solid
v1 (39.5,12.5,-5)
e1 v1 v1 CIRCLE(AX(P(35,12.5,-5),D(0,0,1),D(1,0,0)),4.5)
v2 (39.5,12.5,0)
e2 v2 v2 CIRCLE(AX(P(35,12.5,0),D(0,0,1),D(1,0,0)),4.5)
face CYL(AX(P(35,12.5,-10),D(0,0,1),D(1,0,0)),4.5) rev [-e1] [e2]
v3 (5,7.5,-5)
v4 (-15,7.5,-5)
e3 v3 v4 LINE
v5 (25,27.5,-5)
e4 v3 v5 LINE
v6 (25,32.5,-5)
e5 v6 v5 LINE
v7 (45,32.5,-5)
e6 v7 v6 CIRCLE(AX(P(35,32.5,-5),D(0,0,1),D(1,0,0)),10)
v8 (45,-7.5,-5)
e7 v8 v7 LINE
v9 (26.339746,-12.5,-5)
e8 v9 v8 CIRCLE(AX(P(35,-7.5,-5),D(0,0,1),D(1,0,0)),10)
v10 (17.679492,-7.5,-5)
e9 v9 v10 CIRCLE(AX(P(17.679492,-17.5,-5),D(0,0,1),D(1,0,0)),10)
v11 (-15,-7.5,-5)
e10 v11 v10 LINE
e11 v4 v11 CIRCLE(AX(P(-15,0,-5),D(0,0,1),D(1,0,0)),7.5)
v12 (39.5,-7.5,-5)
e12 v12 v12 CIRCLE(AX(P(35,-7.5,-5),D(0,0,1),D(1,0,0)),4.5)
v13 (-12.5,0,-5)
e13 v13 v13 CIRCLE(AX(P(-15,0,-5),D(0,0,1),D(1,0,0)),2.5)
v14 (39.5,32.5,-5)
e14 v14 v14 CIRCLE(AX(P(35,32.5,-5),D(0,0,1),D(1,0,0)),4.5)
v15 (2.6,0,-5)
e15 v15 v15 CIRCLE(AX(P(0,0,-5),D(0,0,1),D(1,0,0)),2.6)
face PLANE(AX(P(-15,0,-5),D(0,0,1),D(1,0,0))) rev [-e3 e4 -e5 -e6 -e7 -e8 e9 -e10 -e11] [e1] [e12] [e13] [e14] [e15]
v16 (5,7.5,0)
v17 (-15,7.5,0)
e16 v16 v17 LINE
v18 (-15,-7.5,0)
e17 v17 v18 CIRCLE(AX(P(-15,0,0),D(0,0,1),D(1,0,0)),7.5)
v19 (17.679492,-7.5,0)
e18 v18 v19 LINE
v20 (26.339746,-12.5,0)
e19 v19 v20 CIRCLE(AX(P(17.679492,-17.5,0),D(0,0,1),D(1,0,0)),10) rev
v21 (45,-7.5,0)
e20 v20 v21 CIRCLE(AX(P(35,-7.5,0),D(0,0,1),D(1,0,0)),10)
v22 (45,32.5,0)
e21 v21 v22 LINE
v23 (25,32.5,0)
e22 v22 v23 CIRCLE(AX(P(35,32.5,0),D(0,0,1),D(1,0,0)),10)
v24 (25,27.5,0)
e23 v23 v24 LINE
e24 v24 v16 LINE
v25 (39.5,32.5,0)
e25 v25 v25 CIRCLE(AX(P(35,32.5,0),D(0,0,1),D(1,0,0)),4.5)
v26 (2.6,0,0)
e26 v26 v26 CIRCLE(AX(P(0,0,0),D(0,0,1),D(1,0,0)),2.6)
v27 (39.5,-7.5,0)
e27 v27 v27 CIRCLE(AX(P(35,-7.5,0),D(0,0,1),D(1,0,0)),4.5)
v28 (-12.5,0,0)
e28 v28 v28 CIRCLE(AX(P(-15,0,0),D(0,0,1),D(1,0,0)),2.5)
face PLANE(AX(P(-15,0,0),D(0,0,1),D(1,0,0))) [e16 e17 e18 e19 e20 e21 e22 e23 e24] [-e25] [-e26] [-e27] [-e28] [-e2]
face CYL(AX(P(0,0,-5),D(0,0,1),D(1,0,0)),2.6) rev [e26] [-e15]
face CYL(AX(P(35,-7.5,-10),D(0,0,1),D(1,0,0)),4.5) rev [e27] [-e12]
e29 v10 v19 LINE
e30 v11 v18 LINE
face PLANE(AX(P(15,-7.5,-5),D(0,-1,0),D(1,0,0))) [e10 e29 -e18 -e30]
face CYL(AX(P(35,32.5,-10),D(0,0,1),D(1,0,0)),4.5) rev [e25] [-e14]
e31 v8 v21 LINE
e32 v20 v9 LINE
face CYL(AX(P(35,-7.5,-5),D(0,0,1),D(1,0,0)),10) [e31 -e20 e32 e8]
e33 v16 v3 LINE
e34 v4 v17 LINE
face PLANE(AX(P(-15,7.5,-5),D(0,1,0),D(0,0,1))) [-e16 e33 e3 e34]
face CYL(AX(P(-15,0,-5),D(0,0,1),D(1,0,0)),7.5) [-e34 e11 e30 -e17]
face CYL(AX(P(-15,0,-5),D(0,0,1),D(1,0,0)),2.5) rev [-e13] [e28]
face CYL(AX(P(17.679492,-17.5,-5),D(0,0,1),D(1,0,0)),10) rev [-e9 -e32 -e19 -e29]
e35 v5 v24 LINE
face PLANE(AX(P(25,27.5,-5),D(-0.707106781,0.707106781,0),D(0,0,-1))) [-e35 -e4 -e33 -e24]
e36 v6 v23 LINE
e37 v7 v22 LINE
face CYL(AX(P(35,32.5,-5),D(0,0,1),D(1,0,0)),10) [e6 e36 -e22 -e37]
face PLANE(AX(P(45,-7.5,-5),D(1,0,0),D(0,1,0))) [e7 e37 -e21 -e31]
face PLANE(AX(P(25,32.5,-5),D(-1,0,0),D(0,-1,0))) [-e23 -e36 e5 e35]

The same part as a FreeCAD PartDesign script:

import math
import FreeCAD as App
import Part
import Sketcher
from FreeCAD import Vector
Q = App.Units.Quantity


def edges_at(feature, points):
    """Names of the edges that pass closest to the given points."""
    edges = feature.Shape.Edges
    near = lambda p: min(range(len(edges)), key=lambda i: edges[i].distToShape(Part.Vertex(*p))[0])
    return sorted({f"Edge{near(p) + 1}" for p in points})

doc = App.newDocument("Part")
body = doc.addObject("PartDesign::Body", "Body")

# Sketch on XY plane
sketch1 = doc.addObject("Sketcher::SketchObject", "Sketch")
body.addObject(sketch1)
sketch1.AttachmentSupport = (doc.XY_Plane, [""])
sketch1.MapMode = "FlatFace"
sketch1.addGeometry([
    Part.LineSegment(Vector(25, 7.5, 0), Vector(-15, 7.5, 0)),  # 0
    Part.ArcOfCircle(Part.Circle(Vector(-15, 0, 0), Vector(0, 0, 1), 7.5), math.radians(90), math.radians(270)),  # 1
    Part.LineSegment(Vector(-15, -7.5, 0), Vector(25, -7.5, 0)),  # 2
    Part.ArcOfCircle(Part.Circle(Vector(35, -7.5, 0), Vector(0, 0, 1), 10), math.radians(180), math.radians(360)),  # 3
    Part.LineSegment(Vector(45, -7.5, 0), Vector(45, 32.5, 0)),  # 4
    Part.ArcOfCircle(Part.Circle(Vector(35, 32.5, 0), Vector(0, 0, 1), 10), math.radians(0), math.radians(180)),  # 5
    Part.LineSegment(Vector(25, 32.5, 0), Vector(25, 7.5, 0)),  # 6
    Part.Circle(Vector(-15, 0, 0), Vector(0, 0, 1), 2.5),  # 7
    Part.Circle(Vector(0, 0, 0), Vector(0, 0, 1), 2.6),  # 8
], False)
sketch1.addConstraint([
    Sketcher.Constraint("Tangent", 0, 2, 1, 1),
    Sketcher.Constraint("Tangent", 1, 2, 2, 1),
    Sketcher.Constraint("Coincident", 2, 2, 3, 1),
    Sketcher.Constraint("Tangent", 3, 2, 4, 1),
    Sketcher.Constraint("Tangent", 4, 2, 5, 1),
    Sketcher.Constraint("Tangent", 5, 2, 6, 1),
    Sketcher.Constraint("Coincident", 6, 2, 0, 1),
    Sketcher.Constraint("Horizontal", 0),
    Sketcher.Constraint("Horizontal", 2),
    Sketcher.Constraint("Vertical", 4),
    Sketcher.Constraint("Vertical", 6),
    Sketcher.Constraint("Coincident", 8, 3, -1, 1),
    Sketcher.Constraint("Coincident", 7, 3, 1, 3),
    Sketcher.Constraint("Equal", 3, 5),
    Sketcher.Constraint("PointOnObject", 1, 3, -1),
    Sketcher.Constraint("Horizontal", 3, 3, 1, 2),
    Sketcher.Constraint("Equal", 2, 4),
    Sketcher.Constraint("Diameter", 7, Q("5 mm")),
    Sketcher.Constraint("Radius", 3, Q("10 mm")),
    Sketcher.Constraint("Diameter", 8, Q("5.2 mm")),
    Sketcher.Constraint("Radius", 1, Q("7.5 mm")),
    Sketcher.Constraint("DistanceX", 0, 2, 0, 1, Q("40 mm")),
    Sketcher.Constraint("DistanceX", 1, 3, -1, 1, Q("15 mm")),
])
pad1 = doc.addObject("PartDesign::Pad", "Pad")
body.addObject(pad1)
pad1.Profile = sketch1
pad1.Length = 5
pad1.Reversed = True

# Sketch on XY plane
sketch2 = doc.addObject("Sketcher::SketchObject", "Sketch001")
body.addObject(sketch2)
sketch2.AttachmentSupport = (doc.XY_Plane, [""])
sketch2.MapMode = "FlatFace"
sketch2.addGeometry([
    Part.Circle(Vector(35, -7.5, 0), Vector(0, 0, 1), 4.5),
    Part.Circle(Vector(35, 32.5, 0), Vector(0, 0, 1), 4.5),
    Part.Circle(Vector(35, 12.5, 0), Vector(0, 0, 1), 4.5),
], False)
sketch2.addConstraint([
    Sketcher.Constraint("Equal", 0, 1),
    Sketcher.Constraint("Equal", 1, 2),
    Sketcher.Constraint("Vertical", 0, 3, 1, 3),
    Sketcher.Constraint("Vertical", 1, 3, 2, 3),
    Sketcher.Constraint("Diameter", 0, Q("9 mm")),
    Sketcher.Constraint("DistanceX", -1, 1, 0, 3, Q("35 mm")),
    Sketcher.Constraint("DistanceY", 0, 3, 1, 3, Q("40 mm")),
    Sketcher.Constraint("DistanceY", 0, 3, 2, 3, Q("20 mm")),
    Sketcher.Constraint("DistanceY", 0, 3, -1, 1, Q("7.5 mm")),
])
pocket1 = doc.addObject("PartDesign::Pocket", "Pocket")
body.addObject(pocket1)
pocket1.Profile = sketch2
pocket1.Length = 10
doc.recompute()

chamfer = doc.addObject("PartDesign::Chamfer", "Chamfer")
body.addObject(chamfer)
chamfer.Base = (pocket1, edges_at(pocket1, [(25, 7.5, -2.5)]))
chamfer.Size = 20
doc.recompute()

fillet = doc.addObject("PartDesign::Fillet", "Fillet")
body.addObject(fillet)
fillet.Base = (chamfer, edges_at(chamfer, [(25, -7.5, -2.5)]))
fillet.Radius = 10

doc.recompute()
